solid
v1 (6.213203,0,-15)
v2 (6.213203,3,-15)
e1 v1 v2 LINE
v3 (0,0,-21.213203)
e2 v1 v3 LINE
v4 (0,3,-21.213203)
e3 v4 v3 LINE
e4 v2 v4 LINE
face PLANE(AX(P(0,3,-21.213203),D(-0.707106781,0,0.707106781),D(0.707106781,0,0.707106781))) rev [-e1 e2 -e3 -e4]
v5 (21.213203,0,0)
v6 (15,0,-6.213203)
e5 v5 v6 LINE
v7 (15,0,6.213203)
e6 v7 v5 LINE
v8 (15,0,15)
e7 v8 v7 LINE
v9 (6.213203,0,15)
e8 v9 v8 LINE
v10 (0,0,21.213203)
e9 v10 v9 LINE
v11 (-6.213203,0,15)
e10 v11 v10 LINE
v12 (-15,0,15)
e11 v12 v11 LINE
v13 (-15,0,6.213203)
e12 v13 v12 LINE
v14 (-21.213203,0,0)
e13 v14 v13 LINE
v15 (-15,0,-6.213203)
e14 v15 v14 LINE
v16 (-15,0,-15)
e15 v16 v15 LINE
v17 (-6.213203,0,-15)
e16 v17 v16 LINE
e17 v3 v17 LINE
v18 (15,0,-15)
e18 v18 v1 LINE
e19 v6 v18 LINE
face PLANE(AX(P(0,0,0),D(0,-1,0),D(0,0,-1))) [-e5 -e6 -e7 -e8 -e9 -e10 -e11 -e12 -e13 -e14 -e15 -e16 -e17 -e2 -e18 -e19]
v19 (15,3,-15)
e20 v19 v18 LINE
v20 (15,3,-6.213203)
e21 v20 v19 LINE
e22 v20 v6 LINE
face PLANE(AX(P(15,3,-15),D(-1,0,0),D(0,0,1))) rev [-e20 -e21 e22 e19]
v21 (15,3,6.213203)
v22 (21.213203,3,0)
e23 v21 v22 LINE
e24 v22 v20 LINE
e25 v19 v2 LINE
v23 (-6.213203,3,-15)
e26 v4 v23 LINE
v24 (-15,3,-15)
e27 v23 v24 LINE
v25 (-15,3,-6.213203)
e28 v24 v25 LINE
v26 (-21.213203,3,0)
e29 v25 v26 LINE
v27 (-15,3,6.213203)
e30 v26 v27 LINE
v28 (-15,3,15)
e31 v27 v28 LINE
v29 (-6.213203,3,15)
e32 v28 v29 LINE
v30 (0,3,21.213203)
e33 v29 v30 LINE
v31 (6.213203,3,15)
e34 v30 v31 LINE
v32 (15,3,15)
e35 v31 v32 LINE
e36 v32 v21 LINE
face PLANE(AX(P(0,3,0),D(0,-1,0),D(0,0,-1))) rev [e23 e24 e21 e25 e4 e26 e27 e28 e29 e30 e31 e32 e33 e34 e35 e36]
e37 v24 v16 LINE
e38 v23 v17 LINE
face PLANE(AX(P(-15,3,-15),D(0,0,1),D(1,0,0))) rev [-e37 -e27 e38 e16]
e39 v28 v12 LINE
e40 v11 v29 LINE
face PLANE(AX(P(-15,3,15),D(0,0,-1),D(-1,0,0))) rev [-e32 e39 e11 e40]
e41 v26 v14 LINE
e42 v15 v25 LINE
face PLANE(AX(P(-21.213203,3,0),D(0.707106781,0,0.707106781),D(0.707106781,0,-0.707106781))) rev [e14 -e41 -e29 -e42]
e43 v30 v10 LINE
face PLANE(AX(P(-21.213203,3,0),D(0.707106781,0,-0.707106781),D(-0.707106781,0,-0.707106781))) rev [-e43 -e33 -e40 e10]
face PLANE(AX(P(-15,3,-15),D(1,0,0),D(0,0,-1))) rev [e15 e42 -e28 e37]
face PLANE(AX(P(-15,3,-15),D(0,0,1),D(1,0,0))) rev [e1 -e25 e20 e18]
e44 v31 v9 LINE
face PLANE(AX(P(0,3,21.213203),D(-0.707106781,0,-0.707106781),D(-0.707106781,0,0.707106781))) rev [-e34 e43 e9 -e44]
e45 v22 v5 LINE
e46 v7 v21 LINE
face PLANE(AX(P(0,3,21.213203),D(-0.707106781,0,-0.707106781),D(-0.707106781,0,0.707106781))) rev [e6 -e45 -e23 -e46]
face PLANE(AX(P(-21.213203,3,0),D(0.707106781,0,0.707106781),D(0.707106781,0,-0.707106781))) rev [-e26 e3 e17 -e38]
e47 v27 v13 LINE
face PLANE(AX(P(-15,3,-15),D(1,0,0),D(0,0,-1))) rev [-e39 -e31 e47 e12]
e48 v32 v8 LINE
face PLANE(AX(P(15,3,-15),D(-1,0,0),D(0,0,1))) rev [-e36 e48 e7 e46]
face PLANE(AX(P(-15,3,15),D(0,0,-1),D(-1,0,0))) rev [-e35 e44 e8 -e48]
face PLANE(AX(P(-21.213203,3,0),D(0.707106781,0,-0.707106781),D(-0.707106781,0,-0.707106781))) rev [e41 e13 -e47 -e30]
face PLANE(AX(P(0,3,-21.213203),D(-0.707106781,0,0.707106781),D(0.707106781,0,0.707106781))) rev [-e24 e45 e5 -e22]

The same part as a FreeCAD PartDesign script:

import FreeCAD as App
import Part
import Sketcher
Q = App.Units.Quantity

doc = App.newDocument("Part")
body = doc.addObject("PartDesign::Body", "Body")

# Sketch on XZ plane
sketch1 = doc.addObject("Sketcher::SketchObject", "Sketch")
body.addObject(sketch1)
sketch1.AttachmentSupport = (doc.XZ_Plane, [""])
sketch1.MapMode = "FlatFace"
sketch1.addGeometry([
    Part.LineSegment(App.Vector(-21.213203, 0, 0), App.Vector(0, 21.213203, 0)),
    Part.LineSegment(App.Vector(0, 21.213203, 0), App.Vector(21.213203, 0, 0)),
    Part.LineSegment(App.Vector(21.213203, 0, 0), App.Vector(0, -21.213203, 0)),
    Part.LineSegment(App.Vector(0, -21.213203, 0), App.Vector(-21.213203, 0, 0)),
], False)
sketch1.addConstraint([
    Sketcher.Constraint("Coincident", 0, 2, 1, 1),
    Sketcher.Constraint("Coincident", 1, 2, 2, 1),
    Sketcher.Constraint("Coincident", 2, 2, 3, 1),
    Sketcher.Constraint("Coincident", 3, 2, 0, 1),
    Sketcher.Constraint("Symmetric", 0, 2, 2, 2, -1, 1),
    Sketcher.Constraint("Symmetric", 1, 2, 3, 2, -1, 1),
    Sketcher.Constraint("PointOnObject", 0, 2, -2),
    Sketcher.Constraint("PointOnObject", 1, 2, -1),
    Sketcher.Constraint("Perpendicular", 0, 1),
    Sketcher.Constraint("Distance", 0, Q("30 mm")),
])
pad1 = doc.addObject("PartDesign::Pad", "Pad")
body.addObject(pad1)
pad1.Profile = sketch1
pad1.Length = 3
pad1.Reversed = True

# Sketch on XZ plane
sketch2 = doc.addObject("Sketcher::SketchObject", "Sketch001")
body.addObject(sketch2)
sketch2.AttachmentSupport = (doc.XZ_Plane, [""])
sketch2.MapMode = "FlatFace"
sketch2.addGeometry([
    Part.LineSegment(App.Vector(-15, -15, 0), App.Vector(-15, 15, 0)),
    Part.LineSegment(App.Vector(-15, 15, 0), App.Vector(15, 15, 0)),
    Part.LineSegment(App.Vector(15, 15, 0), App.Vector(15, -15, 0)),
    Part.LineSegment(App.Vector(15, -15, 0), App.Vector(-15, -15, 0)),
], False)
sketch2.addConstraint([
    Sketcher.Constraint("Coincident", 0, 2, 1, 1),
    Sketcher.Constraint("Coincident", 1, 2, 2, 1),
    Sketcher.Constraint("Coincident", 2, 2, 3, 1),
    Sketcher.Constraint("Coincident", 3, 2, 0, 1),
    Sketcher.Constraint("Vertical", 0),
    Sketcher.Constraint("Horizontal", 1),
    Sketcher.Constraint("Vertical", 2),
    Sketcher.Constraint("Horizontal", 3),
    Sketcher.Constraint("Symmetric", 0, 2, 2, 2, -1, 1),
    Sketcher.Constraint("Equal", 3, 0),
    Sketcher.Constraint("DistanceX", 1, 1, 1, 2, Q("30 mm")),
])
pad2 = doc.addObject("PartDesign::Pad", "Pad001")
body.addObject(pad2)
pad2.Profile = sketch2
pad2.Length = 3
pad2.Reversed = True

doc.recompute()
